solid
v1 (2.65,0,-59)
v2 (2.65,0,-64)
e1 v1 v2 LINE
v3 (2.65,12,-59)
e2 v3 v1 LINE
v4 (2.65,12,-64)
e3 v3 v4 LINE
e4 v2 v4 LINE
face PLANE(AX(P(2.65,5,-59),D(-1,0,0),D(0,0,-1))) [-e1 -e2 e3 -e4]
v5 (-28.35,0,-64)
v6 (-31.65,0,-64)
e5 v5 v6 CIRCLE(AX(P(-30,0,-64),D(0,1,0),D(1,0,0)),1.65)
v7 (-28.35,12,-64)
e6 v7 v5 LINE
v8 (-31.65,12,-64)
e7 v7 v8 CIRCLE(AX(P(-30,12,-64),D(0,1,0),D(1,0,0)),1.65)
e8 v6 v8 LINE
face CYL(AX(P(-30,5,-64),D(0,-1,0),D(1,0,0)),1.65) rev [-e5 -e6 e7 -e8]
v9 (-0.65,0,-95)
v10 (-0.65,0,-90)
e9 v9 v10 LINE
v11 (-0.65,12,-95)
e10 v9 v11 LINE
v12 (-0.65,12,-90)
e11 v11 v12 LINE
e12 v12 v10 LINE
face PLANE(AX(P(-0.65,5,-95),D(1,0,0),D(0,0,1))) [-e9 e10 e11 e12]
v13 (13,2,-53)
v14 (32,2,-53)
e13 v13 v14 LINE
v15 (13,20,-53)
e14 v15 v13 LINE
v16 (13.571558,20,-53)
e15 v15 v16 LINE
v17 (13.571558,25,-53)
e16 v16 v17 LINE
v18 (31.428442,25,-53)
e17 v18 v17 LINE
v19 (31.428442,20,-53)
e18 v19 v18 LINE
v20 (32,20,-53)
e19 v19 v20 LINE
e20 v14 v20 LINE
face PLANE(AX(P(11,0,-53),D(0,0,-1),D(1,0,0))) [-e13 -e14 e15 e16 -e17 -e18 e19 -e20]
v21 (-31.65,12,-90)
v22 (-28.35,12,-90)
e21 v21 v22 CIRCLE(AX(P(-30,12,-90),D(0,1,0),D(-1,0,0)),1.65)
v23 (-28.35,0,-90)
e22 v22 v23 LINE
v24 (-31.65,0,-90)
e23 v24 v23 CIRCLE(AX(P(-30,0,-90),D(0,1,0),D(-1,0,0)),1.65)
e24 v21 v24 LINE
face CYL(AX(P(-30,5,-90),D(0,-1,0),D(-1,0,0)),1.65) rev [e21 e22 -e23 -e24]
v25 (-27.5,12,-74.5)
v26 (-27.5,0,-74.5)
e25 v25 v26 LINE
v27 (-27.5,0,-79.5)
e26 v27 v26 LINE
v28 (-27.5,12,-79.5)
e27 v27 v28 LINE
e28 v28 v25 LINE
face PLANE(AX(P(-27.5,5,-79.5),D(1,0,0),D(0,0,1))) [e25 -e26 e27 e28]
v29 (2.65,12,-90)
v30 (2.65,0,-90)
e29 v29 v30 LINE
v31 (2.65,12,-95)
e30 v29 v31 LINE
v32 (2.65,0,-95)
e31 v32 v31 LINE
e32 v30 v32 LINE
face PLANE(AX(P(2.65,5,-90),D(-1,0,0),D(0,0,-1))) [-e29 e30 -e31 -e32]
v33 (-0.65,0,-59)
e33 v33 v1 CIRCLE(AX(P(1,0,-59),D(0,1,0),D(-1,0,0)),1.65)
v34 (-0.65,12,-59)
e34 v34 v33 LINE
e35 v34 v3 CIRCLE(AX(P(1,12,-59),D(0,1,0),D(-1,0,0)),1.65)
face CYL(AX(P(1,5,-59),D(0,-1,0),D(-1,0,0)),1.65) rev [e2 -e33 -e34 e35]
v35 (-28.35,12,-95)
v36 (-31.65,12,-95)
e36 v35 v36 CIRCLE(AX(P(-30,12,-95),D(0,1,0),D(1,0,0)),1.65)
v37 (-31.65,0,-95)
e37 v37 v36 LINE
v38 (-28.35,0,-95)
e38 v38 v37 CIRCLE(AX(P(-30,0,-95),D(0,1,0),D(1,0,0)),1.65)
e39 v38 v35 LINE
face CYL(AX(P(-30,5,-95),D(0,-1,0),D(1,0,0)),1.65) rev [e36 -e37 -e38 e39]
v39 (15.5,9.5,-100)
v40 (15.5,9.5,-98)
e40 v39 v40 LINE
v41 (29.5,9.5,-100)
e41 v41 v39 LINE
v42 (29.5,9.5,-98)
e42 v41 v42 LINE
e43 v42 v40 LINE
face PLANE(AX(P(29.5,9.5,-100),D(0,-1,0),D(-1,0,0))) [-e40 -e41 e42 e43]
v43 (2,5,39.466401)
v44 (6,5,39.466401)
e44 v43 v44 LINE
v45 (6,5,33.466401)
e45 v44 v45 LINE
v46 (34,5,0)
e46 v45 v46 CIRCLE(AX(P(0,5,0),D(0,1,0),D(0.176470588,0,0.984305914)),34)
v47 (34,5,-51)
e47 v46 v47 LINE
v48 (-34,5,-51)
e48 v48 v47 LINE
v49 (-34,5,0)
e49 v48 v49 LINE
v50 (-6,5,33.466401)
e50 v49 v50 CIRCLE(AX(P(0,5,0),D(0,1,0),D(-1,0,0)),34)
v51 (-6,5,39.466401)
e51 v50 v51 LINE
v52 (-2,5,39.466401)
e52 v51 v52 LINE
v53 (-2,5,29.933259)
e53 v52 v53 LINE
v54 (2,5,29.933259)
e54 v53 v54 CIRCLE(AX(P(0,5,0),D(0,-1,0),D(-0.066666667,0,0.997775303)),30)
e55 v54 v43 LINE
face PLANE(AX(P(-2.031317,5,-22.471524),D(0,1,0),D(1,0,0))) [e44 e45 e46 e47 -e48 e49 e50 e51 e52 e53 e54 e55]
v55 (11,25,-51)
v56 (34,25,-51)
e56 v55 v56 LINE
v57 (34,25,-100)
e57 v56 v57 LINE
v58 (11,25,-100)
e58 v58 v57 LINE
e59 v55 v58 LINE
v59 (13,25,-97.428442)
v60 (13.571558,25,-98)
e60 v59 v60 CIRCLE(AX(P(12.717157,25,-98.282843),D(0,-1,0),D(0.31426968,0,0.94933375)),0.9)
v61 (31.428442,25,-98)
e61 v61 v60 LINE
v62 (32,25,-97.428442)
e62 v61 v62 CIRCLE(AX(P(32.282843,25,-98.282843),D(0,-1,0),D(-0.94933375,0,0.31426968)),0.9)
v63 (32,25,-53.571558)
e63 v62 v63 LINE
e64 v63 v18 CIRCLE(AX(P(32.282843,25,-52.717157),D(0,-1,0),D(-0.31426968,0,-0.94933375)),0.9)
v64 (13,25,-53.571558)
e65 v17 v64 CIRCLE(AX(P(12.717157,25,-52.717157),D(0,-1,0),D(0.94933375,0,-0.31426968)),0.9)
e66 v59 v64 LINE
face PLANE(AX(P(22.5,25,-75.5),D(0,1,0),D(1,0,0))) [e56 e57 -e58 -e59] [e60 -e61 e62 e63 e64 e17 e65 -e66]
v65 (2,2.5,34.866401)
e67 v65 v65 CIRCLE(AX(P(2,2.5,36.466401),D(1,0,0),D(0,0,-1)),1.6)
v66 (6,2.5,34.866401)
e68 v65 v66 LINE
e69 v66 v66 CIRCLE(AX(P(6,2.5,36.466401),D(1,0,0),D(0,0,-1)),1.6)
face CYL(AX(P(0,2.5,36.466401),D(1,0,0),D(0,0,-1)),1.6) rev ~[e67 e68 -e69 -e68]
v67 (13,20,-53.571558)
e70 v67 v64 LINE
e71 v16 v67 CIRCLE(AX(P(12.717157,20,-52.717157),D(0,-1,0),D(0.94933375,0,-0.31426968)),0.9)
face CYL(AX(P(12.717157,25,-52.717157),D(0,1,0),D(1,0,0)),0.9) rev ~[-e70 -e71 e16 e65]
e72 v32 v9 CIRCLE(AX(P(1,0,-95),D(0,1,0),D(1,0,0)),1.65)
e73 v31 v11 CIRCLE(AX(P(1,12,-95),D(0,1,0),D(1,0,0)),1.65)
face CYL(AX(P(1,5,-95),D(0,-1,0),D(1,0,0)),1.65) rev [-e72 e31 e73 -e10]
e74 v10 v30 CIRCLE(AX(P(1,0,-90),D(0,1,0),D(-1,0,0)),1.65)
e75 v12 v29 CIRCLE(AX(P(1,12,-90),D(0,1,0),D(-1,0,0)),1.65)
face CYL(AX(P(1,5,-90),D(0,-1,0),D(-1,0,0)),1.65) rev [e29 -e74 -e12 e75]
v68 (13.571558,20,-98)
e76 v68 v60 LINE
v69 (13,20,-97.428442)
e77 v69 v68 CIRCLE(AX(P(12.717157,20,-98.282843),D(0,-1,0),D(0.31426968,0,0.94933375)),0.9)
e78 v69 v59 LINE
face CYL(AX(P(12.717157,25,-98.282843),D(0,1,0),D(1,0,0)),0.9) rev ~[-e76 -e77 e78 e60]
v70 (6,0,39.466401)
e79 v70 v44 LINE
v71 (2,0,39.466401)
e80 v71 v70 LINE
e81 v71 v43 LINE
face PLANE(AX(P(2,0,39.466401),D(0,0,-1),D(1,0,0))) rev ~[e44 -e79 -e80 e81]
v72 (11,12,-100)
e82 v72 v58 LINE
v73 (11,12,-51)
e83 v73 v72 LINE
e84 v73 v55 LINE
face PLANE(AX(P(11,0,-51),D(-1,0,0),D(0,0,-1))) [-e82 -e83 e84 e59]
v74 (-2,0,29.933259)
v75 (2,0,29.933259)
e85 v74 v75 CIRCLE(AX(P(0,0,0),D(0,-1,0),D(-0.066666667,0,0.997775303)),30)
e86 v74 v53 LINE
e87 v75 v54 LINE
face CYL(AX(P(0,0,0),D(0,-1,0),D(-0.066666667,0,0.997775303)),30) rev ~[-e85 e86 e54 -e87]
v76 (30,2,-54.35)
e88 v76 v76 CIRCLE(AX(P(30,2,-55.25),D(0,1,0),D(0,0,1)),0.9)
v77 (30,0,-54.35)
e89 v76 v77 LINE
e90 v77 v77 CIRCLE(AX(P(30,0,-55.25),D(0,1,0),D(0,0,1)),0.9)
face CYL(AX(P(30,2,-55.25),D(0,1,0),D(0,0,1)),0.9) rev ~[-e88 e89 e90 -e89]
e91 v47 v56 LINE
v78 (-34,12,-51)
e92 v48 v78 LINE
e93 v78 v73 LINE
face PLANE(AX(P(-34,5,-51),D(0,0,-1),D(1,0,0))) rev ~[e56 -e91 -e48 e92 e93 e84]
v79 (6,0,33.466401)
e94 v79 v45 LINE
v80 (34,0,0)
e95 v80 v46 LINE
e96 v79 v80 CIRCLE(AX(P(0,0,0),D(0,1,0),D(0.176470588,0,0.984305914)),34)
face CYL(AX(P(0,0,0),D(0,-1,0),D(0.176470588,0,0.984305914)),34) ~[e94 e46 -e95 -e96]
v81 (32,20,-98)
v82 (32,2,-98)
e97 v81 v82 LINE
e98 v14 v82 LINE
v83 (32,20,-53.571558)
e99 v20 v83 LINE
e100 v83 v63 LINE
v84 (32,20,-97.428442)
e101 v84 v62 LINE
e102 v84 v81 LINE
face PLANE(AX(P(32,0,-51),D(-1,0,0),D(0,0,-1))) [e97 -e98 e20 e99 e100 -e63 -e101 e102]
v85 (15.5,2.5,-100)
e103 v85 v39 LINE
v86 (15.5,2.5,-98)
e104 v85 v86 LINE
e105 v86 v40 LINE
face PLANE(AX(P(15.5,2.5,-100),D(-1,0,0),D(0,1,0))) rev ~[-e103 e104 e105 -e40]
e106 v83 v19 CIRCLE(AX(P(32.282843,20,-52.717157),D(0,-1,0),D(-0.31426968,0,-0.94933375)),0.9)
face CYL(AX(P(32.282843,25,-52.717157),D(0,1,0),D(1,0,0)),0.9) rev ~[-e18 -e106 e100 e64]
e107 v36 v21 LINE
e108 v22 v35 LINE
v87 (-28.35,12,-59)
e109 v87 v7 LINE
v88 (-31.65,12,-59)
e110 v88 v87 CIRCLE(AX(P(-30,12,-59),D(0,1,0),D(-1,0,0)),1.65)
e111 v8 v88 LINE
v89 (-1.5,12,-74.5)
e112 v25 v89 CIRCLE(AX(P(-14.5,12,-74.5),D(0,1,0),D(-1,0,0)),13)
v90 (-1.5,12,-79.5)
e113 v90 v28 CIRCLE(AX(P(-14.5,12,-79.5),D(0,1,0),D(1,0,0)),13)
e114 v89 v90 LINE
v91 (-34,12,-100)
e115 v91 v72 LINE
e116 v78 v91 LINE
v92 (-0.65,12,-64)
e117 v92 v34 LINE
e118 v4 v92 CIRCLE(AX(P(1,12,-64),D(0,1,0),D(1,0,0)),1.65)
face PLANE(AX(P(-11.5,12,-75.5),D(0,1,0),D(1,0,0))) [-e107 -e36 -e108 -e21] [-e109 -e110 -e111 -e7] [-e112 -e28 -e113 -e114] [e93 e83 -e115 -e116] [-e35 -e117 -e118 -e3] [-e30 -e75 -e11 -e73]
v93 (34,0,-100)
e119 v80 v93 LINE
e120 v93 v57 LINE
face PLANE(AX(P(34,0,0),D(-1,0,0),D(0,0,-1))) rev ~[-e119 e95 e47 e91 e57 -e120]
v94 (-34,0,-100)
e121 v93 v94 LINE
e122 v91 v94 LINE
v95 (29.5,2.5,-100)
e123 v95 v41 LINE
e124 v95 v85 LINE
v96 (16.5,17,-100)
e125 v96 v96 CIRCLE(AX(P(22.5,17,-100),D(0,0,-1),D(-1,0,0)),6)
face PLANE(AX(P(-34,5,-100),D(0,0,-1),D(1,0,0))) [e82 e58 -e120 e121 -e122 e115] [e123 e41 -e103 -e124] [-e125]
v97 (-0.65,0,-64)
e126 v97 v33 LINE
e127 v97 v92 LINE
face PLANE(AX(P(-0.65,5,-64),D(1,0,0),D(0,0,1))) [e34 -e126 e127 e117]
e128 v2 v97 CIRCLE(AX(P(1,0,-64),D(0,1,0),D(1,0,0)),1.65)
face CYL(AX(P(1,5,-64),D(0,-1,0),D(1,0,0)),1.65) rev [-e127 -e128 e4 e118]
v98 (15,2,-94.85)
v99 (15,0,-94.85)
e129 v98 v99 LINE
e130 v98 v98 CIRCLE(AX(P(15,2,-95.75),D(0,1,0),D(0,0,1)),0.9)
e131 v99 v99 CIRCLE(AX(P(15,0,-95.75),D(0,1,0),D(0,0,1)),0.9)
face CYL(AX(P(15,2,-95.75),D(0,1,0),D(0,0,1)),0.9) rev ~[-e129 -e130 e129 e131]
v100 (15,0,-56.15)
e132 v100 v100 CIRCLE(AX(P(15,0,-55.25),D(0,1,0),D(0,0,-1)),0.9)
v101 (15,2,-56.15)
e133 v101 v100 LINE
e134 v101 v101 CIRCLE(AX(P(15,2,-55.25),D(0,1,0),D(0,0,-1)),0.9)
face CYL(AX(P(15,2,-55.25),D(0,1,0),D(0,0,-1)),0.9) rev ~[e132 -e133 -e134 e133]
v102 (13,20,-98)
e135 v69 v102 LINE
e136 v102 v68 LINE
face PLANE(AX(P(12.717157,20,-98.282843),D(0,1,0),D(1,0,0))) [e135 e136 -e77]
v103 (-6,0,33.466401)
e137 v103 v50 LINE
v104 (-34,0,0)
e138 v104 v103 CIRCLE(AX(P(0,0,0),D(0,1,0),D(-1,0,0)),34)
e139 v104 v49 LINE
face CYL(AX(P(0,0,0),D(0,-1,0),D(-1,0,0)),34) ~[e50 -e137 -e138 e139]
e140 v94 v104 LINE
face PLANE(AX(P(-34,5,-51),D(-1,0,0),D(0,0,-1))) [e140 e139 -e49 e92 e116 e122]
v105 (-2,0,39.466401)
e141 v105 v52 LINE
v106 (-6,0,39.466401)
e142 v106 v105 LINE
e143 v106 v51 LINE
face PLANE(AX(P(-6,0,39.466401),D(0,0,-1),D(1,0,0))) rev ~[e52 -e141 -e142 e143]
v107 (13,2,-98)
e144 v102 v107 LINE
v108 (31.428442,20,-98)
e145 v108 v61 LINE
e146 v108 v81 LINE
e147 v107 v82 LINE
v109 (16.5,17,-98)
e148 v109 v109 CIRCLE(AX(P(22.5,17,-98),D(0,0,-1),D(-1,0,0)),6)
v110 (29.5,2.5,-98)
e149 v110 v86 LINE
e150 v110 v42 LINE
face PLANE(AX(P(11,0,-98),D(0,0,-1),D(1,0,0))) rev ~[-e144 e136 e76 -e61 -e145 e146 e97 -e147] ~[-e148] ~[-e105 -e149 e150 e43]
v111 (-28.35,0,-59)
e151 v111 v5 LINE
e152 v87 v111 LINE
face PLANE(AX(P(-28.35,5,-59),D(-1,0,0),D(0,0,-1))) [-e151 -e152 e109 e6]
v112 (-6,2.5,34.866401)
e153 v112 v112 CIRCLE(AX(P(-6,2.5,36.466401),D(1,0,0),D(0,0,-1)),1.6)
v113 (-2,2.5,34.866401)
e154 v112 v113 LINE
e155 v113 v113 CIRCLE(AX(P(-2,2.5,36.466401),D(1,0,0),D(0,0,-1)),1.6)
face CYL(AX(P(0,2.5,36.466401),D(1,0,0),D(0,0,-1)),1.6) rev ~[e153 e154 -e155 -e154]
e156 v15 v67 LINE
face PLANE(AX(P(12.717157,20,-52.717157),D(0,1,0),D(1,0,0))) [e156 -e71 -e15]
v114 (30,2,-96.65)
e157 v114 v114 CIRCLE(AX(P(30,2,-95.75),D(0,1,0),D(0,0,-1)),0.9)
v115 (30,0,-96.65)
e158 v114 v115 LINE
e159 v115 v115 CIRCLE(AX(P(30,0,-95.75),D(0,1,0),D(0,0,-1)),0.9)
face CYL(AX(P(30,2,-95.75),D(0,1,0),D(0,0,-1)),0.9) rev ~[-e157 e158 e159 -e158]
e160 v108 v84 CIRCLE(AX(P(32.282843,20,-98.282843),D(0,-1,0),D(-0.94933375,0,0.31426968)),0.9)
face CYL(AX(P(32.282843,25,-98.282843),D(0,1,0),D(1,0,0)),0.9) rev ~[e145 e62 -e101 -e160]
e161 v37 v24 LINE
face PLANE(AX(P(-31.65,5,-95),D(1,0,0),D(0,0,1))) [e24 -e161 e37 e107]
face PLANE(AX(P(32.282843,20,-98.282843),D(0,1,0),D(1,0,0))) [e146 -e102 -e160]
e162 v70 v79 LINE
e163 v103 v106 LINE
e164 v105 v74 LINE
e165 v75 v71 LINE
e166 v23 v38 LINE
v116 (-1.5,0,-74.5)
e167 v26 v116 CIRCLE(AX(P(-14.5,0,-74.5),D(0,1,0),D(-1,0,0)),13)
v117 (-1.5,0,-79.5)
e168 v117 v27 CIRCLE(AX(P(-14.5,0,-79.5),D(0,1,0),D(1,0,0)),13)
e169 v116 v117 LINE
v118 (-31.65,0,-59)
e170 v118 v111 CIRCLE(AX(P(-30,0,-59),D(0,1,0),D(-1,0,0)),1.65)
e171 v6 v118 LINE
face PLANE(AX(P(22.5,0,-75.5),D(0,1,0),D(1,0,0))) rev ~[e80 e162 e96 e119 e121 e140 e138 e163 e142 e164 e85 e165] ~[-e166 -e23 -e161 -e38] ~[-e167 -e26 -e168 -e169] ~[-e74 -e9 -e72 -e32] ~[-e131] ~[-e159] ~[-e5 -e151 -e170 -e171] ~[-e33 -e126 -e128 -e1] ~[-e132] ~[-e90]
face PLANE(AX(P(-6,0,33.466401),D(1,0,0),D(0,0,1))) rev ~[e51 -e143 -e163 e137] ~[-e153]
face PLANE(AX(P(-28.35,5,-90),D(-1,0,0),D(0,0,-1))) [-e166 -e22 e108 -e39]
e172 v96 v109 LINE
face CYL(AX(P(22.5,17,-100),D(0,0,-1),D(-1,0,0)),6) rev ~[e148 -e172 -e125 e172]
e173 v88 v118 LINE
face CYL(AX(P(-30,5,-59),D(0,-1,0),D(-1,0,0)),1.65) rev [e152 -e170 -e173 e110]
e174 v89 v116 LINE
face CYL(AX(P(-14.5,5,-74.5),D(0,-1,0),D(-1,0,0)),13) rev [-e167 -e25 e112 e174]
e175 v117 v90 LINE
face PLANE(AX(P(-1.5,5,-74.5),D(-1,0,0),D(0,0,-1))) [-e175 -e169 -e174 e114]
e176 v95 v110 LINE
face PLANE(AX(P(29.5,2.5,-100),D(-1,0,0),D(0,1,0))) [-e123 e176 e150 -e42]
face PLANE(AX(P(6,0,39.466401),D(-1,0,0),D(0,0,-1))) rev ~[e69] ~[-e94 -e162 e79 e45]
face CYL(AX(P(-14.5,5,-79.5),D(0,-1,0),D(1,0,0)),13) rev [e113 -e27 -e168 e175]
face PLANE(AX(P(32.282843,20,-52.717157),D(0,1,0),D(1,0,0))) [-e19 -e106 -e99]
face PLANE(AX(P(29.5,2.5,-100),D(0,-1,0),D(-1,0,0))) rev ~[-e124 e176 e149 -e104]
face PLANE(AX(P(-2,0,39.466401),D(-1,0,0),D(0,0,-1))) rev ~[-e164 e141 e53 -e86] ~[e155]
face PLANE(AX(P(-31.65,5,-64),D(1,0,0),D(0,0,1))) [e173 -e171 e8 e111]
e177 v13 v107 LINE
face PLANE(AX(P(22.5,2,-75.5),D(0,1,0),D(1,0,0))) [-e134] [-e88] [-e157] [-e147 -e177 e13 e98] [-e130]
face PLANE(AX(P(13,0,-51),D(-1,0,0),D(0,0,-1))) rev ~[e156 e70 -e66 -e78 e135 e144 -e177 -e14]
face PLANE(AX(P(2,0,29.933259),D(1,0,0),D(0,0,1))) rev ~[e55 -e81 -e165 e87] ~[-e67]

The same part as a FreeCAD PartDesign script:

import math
import FreeCAD as App
import Part
import Sketcher
from FreeCAD import Vector


def faces_at(feature, points):
    """Names of the faces that lie closest to the given points."""
    faces = feature.Shape.Faces
    near = lambda p: min(range(len(faces)), key=lambda i: faces[i].distToShape(Part.Vertex(*p))[0])
    return sorted({f"Face{near(p) + 1}" for p in points})


def add_polygon(sketch, points):
    """Adds a closed chain of lines whose ends are joined by coincident constraints."""
    first, n = sketch.GeometryCount, len(points)
    for a, b in zip(points, points[1:] + points[:1]):
        sketch.addGeometry(Part.LineSegment(App.Vector(*a, 0), App.Vector(*b, 0)), False)
    for i in range(n):
        sketch.addConstraint(Sketcher.Constraint("Coincident", first + i, 2, first + (i + 1) % n, 1))

doc = App.newDocument("Part")
params = doc.addObject("Spreadsheet::Sheet", "Params")
for row, (alias, value) in enumerate([
    ("sketch1_radius", "34 mm"),
    ("sketch1_radius2", "30 mm"),
    ("sketch1_radius3", "13 mm"),
    ("sketch1_width", "23 mm"),
    ("sketch1_width2", "4 mm"),
    ("pad1_length", "5 mm"),
    ("sketch2_diameter", "3.2 mm"),
    ("pocket1_length", "20 mm"),
    ("sketch3_width", "23 mm"),
    ("sketch3_height", "49 mm"),
    ("pad2_length", "25 mm"),
    ("thickness_wall", "2 mm"),
    ("sketch4_diameter", "12 mm"),
    ("sketch4_width", "14 mm"),
    ("sketch4_height", "7 mm"),
    ("pocket2_length", "2 mm"),
    ("sketch5_diameter", "1.8 mm"),
    ("pocket3_length", "5 mm"),
    ("sketch6_diameter", "1.8 mm"),
    ("pocket4_length", "10 mm"),
    ("sketch7_radius", "13 mm"),
    ("sketch7_width", "45 mm"),
    ("sketch7_height", "49 mm"),
    ("sketch7_height2", "5 mm"),
    ("sketch7_radius2", "1.65 mm"),
    ("pad3_length", "7 mm"),
], start=1):
    params.set(f"A{row}", alias)
    params.set(f"B{row}", "=" + value)
    params.setAlias(f"B{row}", alias)

body = doc.addObject("PartDesign::Body", "Body")

sketch1 = body.newObject("Sketcher::SketchObject", "Sketch")
sketch1.AttachmentSupport = (doc.getObject("XZ_Plane"), [""])
sketch1.MapMode = "FlatFace"
sketch1.addGeometry([
    Part.LineSegment(Vector(6, 39.466401, 0), Vector(6, 33.466401, 0)),
    Part.ArcOfCircle(Part.Circle(Vector(0, 0, 0), Vector(0, 0, 1), 34), math.radians(0), math.radians(79.835751)),
    Part.LineSegment(Vector(34, 0, 0), Vector(34, -51, 0)),
    Part.LineSegment(Vector(34, -51, 0), Vector(11, -51, 0)),
    Part.LineSegment(Vector(11, -51, 0), Vector(11, -100, 0)),
    Part.LineSegment(Vector(11, -100, 0), Vector(-34, -100, 0)),
    Part.LineSegment(Vector(-34, -100, 0), Vector(-34, 0, 0)),
    Part.ArcOfCircle(Part.Circle(Vector(0, 0, 0), Vector(0, 0, 1), 34), math.radians(100.164249), math.radians(180)),
    Part.LineSegment(Vector(-6, 33.466401, 0), Vector(-6, 39.466401, 0)),
    Part.LineSegment(Vector(-6, 39.466401, 0), Vector(-2, 39.466401, 0)),
    Part.LineSegment(Vector(-2, 39.466401, 0), Vector(-2, 29.933259, 0)),
    Part.ArcOfCircle(Part.Circle(Vector(0, 0, 0), Vector(0, 0, 1), 30), math.radians(93.822554), math.radians(446.177446)),
    Part.LineSegment(Vector(2, 29.933259, 0), Vector(2, 39.466401, 0)),
    Part.LineSegment(Vector(2, 39.466401, 0), Vector(6, 39.466401, 0)),
    Part.ArcOfCircle(Part.Circle(Vector(-30, -59, 0), Vector(0, 0, 1), 1.65), math.radians(0), math.radians(180)),
    Part.LineSegment(Vector(-31.65, -59, 0), Vector(-31.65, -64, 0)),
    Part.ArcOfCircle(Part.Circle(Vector(-30, -64, 0), Vector(0, 0, 1), 1.65), math.radians(180), math.radians(360)),
    Part.LineSegment(Vector(-28.35, -64, 0), Vector(-28.35, -59, 0)),
    Part.ArcOfCircle(Part.Circle(Vector(1, -59, 0), Vector(0, 0, 1), 1.65), math.radians(0), math.radians(180)),
    Part.LineSegment(Vector(-0.65, -59, 0), Vector(-0.65, -64, 0)),
    Part.ArcOfCircle(Part.Circle(Vector(1, -64, 0), Vector(0, 0, 1), 1.65), math.radians(180), math.radians(360)),
    Part.LineSegment(Vector(2.65, -64, 0), Vector(2.65, -59, 0)),
    Part.ArcOfCircle(Part.Circle(Vector(-14.5, -74.5, 0), Vector(0, 0, 1), 13), math.radians(0), math.radians(180)),
    Part.LineSegment(Vector(-27.5, -74.5, 0), Vector(-27.5, -79.5, 0)),
    Part.ArcOfCircle(Part.Circle(Vector(-14.5, -79.5, 0), Vector(0, 0, 1), 13), math.radians(180), math.radians(360)),
    Part.LineSegment(Vector(-1.5, -79.5, 0), Vector(-1.5, -74.5, 0)),
    Part.ArcOfCircle(Part.Circle(Vector(-30, -90, 0), Vector(0, 0, 1), 1.65), math.radians(0), math.radians(180)),
    Part.LineSegment(Vector(-31.65, -90, 0), Vector(-31.65, -95, 0)),
    Part.ArcOfCircle(Part.Circle(Vector(-30, -95, 0), Vector(0, 0, 1), 1.65), math.radians(180), math.radians(360)),
    Part.LineSegment(Vector(-28.35, -95, 0), Vector(-28.35, -90, 0)),
    Part.ArcOfCircle(Part.Circle(Vector(1, -90, 0), Vector(0, 0, 1), 1.65), math.radians(0), math.radians(180)),
    Part.LineSegment(Vector(-0.65, -90, 0), Vector(-0.65, -95, 0)),
    Part.ArcOfCircle(Part.Circle(Vector(1, -95, 0), Vector(0, 0, 1), 1.65), math.radians(180), math.radians(360)),
    Part.LineSegment(Vector(2.65, -95, 0), Vector(2.65, -90, 0)),
], False)
sketch1.addConstraint([
    Sketcher.Constraint("Coincident", 0, 2, 1, 2),
    Sketcher.Constraint("Tangent", 1, 1, 2, 1),
    Sketcher.Constraint("Coincident", 2, 2, 3, 1),
    Sketcher.Constraint("Coincident", 3, 2, 4, 1),
    Sketcher.Constraint("Coincident", 4, 2, 5, 1),
    Sketcher.Constraint("Coincident", 5, 2, 6, 1),
    Sketcher.Constraint("Tangent", 6, 2, 7, 2),
    Sketcher.Constraint("Coincident", 7, 1, 8, 1),
    Sketcher.Constraint("Coincident", 8, 2, 9, 1),
    Sketcher.Constraint("Coincident", 9, 2, 10, 1),
    Sketcher.Constraint("Coincident", 10, 2, 11, 1),
    Sketcher.Constraint("Coincident", 11, 2, 12, 1),
    Sketcher.Constraint("Coincident", 12, 2, 13, 1),
    Sketcher.Constraint("Coincident", 13, 2, 0, 1),
    Sketcher.Constraint("Tangent", 14, 2, 15, 1),
    Sketcher.Constraint("Tangent", 15, 2, 16, 1),
    Sketcher.Constraint("Tangent", 16, 2, 17, 1),
    Sketcher.Constraint("Tangent", 17, 2, 14, 1),
    Sketcher.Constraint("Tangent", 18, 2, 19, 1),
    Sketcher.Constraint("Tangent", 19, 2, 20, 1),
    Sketcher.Constraint("Tangent", 20, 2, 21, 1),
    Sketcher.Constraint("Tangent", 21, 2, 18, 1),
    Sketcher.Constraint("Tangent", 22, 2, 23, 1),
    Sketcher.Constraint("Tangent", 23, 2, 24, 1),
    Sketcher.Constraint("Tangent", 24, 2, 25, 1),
    Sketcher.Constraint("Tangent", 25, 2, 22, 1),
    Sketcher.Constraint("Tangent", 26, 2, 27, 1),
    Sketcher.Constraint("Tangent", 27, 2, 28, 1),
    Sketcher.Constraint("Tangent", 28, 2, 29, 1),
    Sketcher.Constraint("Tangent", 29, 2, 26, 1),
    Sketcher.Constraint("Tangent", 30, 2, 31, 1),
    Sketcher.Constraint("Tangent", 31, 2, 32, 1),
    Sketcher.Constraint("Tangent", 32, 2, 33, 1),
    Sketcher.Constraint("Tangent", 33, 2, 30, 1),
    Sketcher.Constraint("Vertical", 0),
    Sketcher.Constraint("Vertical", 2),
    Sketcher.Constraint("Horizontal", 3),
    Sketcher.Constraint("Vertical", 4),
    Sketcher.Constraint("Horizontal", 5),
    Sketcher.Constraint("Vertical", 6),
    Sketcher.Constraint("Vertical", 8),
    Sketcher.Constraint("Horizontal", 9),
    Sketcher.Constraint("Vertical", 10),
    Sketcher.Constraint("Vertical", 12),
    Sketcher.Constraint("Horizontal", 13),
    Sketcher.Constraint("Vertical", 15),
    Sketcher.Constraint("Vertical", 17),
    Sketcher.Constraint("Vertical", 19),
    Sketcher.Constraint("Vertical", 21),
    Sketcher.Constraint("Vertical", 23),
    Sketcher.Constraint("Vertical", 25),
    Sketcher.Constraint("Vertical", 27),
    Sketcher.Constraint("Vertical", 29),
    Sketcher.Constraint("Vertical", 31),
    Sketcher.Constraint("Vertical", 33),
    Sketcher.Constraint("Coincident", 1, 3, -1, 1),
    Sketcher.Constraint("Coincident", 7, 3, -1, 1),
    Sketcher.Constraint("Coincident", 11, 3, -1, 1),
    Sketcher.Constraint("Equal", 1, 7),
    Sketcher.Constraint("Equal", 16, 18),
    Sketcher.Constraint("Equal", 20, 26),
    Sketcher.Constraint("Equal", 28, 30),
    Sketcher.Constraint("Symmetric", 9, 2, 12, 2, -2),
    Sketcher.Constraint("Horizontal", 14, 3, 18, 3),
    Sketcher.Constraint("Horizontal", 16, 3, 20, 3),
    Sketcher.Constraint("Horizontal", 26, 3, 30, 3),
    Sketcher.Constraint("Horizontal", 28, 3, 32, 3),
    Sketcher.Constraint("Horizontal", 0, 2, 7, 1),
    Sketcher.Constraint("Vertical", 16, 3, 26, 3),
    Sketcher.Constraint("Vertical", 20, 3, 30, 3),
    Sketcher.Constraint("Equal", 21, 23),
    Sketcher.Constraint("Equal", 25, 27),
    Sketcher.Constraint("Radius", 1, 34.0),
    Sketcher.Constraint("Radius", 11, 30.0),
    Sketcher.Constraint("Radius", 22, 13.0),
    Sketcher.Constraint("DistanceX", 3, 2, 3, 1, 23.0),
    Sketcher.Constraint("DistanceX", 9, 1, 9, 2, 4.0),
    Sketcher.Constraint("DistanceY", 0, 2, 0, 1, 6.0),
    Sketcher.Constraint("DistanceY", 2, 2, 2, 1, 51.0),
    Sketcher.Constraint("DistanceY", 4, 2, 4, 1, 49.0),
    Sketcher.Constraint("DistanceY", 15, 2, 15, 1, 5.0),
    Sketcher.Constraint("Radius", 14, 1.65),
    Sketcher.Constraint("DistanceX", 14, 3, -1, 1, 30.0),
    Sketcher.Constraint("DistanceY", 14, 3, -1, 1, 59.0),
    Sketcher.Constraint("DistanceX", -1, 1, 18, 3, 1.0),
    Sketcher.Constraint("DistanceY", 26, 3, -1, 1, 90.0),
    Sketcher.Constraint("DistanceX", -1, 1, 0, 2, 6.0),
    Sketcher.Constraint("DistanceX", 22, 3, -1, 1, 14.5),
    Sketcher.Constraint("DistanceY", 22, 3, -1, 1, 74.5),
])
sketch1.setExpression("Constraints[72]", "Params.sketch1_radius")
sketch1.setExpression("Constraints[73]", "Params.sketch1_radius2")
sketch1.setExpression("Constraints[74]", "Params.sketch1_radius3")
sketch1.setExpression("Constraints[75]", "Params.sketch1_width")
sketch1.setExpression("Constraints[76]", "Params.sketch1_width2")
pad1 = body.newObject("PartDesign::Pad", "Pad")
pad1.Profile = sketch1
pad1.setExpression("Length", "Params.pad1_length")
pad1.Reversed = True

sketch2 = body.newObject("Sketcher::SketchObject", "Sketch001")
sketch2.AttachmentSupport = (doc.getObject("YZ_Plane"), [""])
sketch2.MapMode = "FlatFace"
sketch2.addGeometry(Part.Circle(Vector(2.5, 36.466401, 0), Vector(0, 0, 1), 1.6), False)
sketch2.addConstraint([
    Sketcher.Constraint("Diameter", 0, 3.2),
    Sketcher.Constraint("DistanceX", -1, 1, 0, 3, 2.5),
    Sketcher.Constraint("DistanceY", -1, 1, 0, 3, 36.466401),
])
sketch2.setExpression("Constraints[0]", "Params.sketch2_diameter")
pocket1 = body.newObject("PartDesign::Pocket", "Pocket")
pocket1.Profile = sketch2
pocket1.setExpression("Length", "Params.pocket1_length")
pocket1.Midplane = True
body2 = doc.addObject("PartDesign::Body", "Body001")

sketch3 = body2.newObject("Sketcher::SketchObject", "Sketch002")
sketch3.AttachmentSupport = (doc.getObject("XZ_Plane001"), [""])
sketch3.MapMode = "FlatFace"
add_polygon(sketch3, [(11, -100), (11, -51), (34, -51), (34, -100)])
sketch3.addConstraint([
    Sketcher.Constraint("Vertical", 0),
    Sketcher.Constraint("Horizontal", 1),
    Sketcher.Constraint("Vertical", 2),
    Sketcher.Constraint("Horizontal", 3),
    Sketcher.Constraint("DistanceX", 1, 1, 1, 2, 23.0),
    Sketcher.Constraint("DistanceY", 0, 1, 0, 2, 49.0),
    Sketcher.Constraint("DistanceX", -1, 1, 0, 2, 11.0),
    Sketcher.Constraint("DistanceY", 0, 2, -1, 1, 51.0),
])
sketch3.setExpression("Constraints[8]", "Params.sketch3_width")
sketch3.setExpression("Constraints[9]", "Params.sketch3_height")
pad2 = body2.newObject("PartDesign::Pad", "Pad001")
pad2.Profile = sketch3
pad2.setExpression("Length", "Params.pad2_length")
pad2.Reversed = True
doc.recompute()

thickness = body2.newObject("PartDesign::Thickness", "Thickness")
thickness.Base = (pad2, faces_at(pad2, [(22.5, 25, -75.5)]))
thickness.setExpression("Value", "Params.thickness_wall")
thickness.Reversed = True
thickness.Join = "Intersection"

sketch4 = body2.newObject("Sketcher::SketchObject", "Sketch003")
sketch4.AttachmentSupport = (doc.getObject("XY_Plane001"), [""])
sketch4.MapMode = "FlatFace"
sketch4.AttachmentOffset = App.Placement(Vector(0, 0, -100), App.Rotation())
sketch4.addGeometry(Part.Circle(Vector(22.5, 17, 0), Vector(0, 0, 1), 6), False)
add_polygon(sketch4, [(29.5, 9.5), (29.5, 2.5), (15.5, 2.5), (15.5, 9.5)])
sketch4.addConstraint([
    Sketcher.Constraint("Vertical", 1),
    Sketcher.Constraint("Horizontal", 2),
    Sketcher.Constraint("Vertical", 3),
    Sketcher.Constraint("Horizontal", 4),
    Sketcher.Constraint("Diameter", 0, 12.0),
    Sketcher.Constraint("DistanceX", 2, 2, 2, 1, 14.0),
    Sketcher.Constraint("DistanceY", 1, 2, 1, 1, 7.0),
    Sketcher.Constraint("DistanceY", -1, 1, 0, 3, 17.0),
    Sketcher.Constraint("DistanceX", 0, 3, 1, 2, 7.0),
    Sketcher.Constraint("DistanceX", -1, 1, 0, 3, 22.5),
    Sketcher.Constraint("DistanceY", -1, 1, 1, 2, 2.5),
])
sketch4.setExpression("Constraints[8]", "Params.sketch4_diameter")
sketch4.setExpression("Constraints[9]", "Params.sketch4_width")
sketch4.setExpression("Constraints[10]", "Params.sketch4_height")
pocket2 = body2.newObject("PartDesign::Pocket", "Pocket001")
pocket2.Profile = sketch4
pocket2.setExpression("Length", "Params.pocket2_length")
pocket2.Reversed = True

sketch5 = body2.newObject("Sketcher::SketchObject", "Sketch004")
sketch5.AttachmentSupport = (doc.getObject("XZ_Plane001"), [""])
sketch5.MapMode = "FlatFace"
sketch5.AttachmentOffset = App.Placement(Vector(0, 0, -25), App.Rotation())
sketch5.addGeometry([
    Part.Circle(Vector(12.717157, -52.717157, 0), Vector(0, 0, 1), 0.9),
    Part.Circle(Vector(32.282843, -52.717157, 0), Vector(0, 0, 1), 0.9),
    Part.Circle(Vector(32.282843, -98.282843, 0), Vector(0, 0, 1), 0.9),
    Part.Circle(Vector(12.717157, -98.282843, 0), Vector(0, 0, 1), 0.9),
], False)
sketch5.addConstraint([
    Sketcher.Constraint("Equal", 0, 1),
    Sketcher.Constraint("Equal", 1, 2),
    Sketcher.Constraint("Equal", 2, 3),
    Sketcher.Constraint("Horizontal", 0, 3, 1, 3),
    Sketcher.Constraint("Horizontal", 2, 3, 3, 3),
    Sketcher.Constraint("Vertical", 1, 3, 2, 3),
    Sketcher.Constraint("Vertical", 0, 3, 3, 3),
    Sketcher.Constraint("Diameter", 0, 1.8),
    Sketcher.Constraint("DistanceX", -1, 1, 0, 3, 12.717157),
    Sketcher.Constraint("DistanceY", 0, 3, -1, 1, 52.717157),
    Sketcher.Constraint("DistanceX", -1, 1, 1, 3, 32.282843),
    Sketcher.Constraint("DistanceY", 2, 3, -1, 1, 98.282843),
])
sketch5.setExpression("Constraints[7]", "Params.sketch5_diameter")
pocket3 = body2.newObject("PartDesign::Pocket", "Pocket002")
pocket3.Profile = sketch5
pocket3.setExpression("Length", "Params.pocket3_length")
pocket3.Reversed = True

sketch6 = body2.newObject("Sketcher::SketchObject", "Sketch005")
sketch6.AttachmentSupport = (doc.getObject("XZ_Plane001"), [""])
sketch6.MapMode = "FlatFace"
sketch6.AttachmentOffset = App.Placement(Vector(0, 0, -2), App.Rotation())
sketch6.addGeometry([
    Part.Circle(Vector(15, -95.75, 0), Vector(0, 0, 1), 0.9),
    Part.Circle(Vector(30, -95.75, 0), Vector(0, 0, 1), 0.9),
    Part.Circle(Vector(30, -55.25, 0), Vector(0, 0, 1), 0.9),
    Part.Circle(Vector(15, -55.25, 0), Vector(0, 0, 1), 0.9),
], False)
sketch6.addConstraint([
    Sketcher.Constraint("Equal", 0, 1),
    Sketcher.Constraint("Equal", 1, 2),
    Sketcher.Constraint("Equal", 2, 3),
    Sketcher.Constraint("Horizontal", 0, 3, 1, 3),
    Sketcher.Constraint("Horizontal", 2, 3, 3, 3),
    Sketcher.Constraint("Vertical", 1, 3, 2, 3),
    Sketcher.Constraint("Vertical", 0, 3, 3, 3),
    Sketcher.Constraint("Diameter", 0, 1.8),
    Sketcher.Constraint("DistanceX", -1, 1, 0, 3, 15.0),
    Sketcher.Constraint("DistanceX", -1, 1, 1, 3, 30.0),
    Sketcher.Constraint("DistanceY", 1, 3, 2, 3, 40.5),
    Sketcher.Constraint("DistanceY", 0, 3, -1, 1, 95.75),
])
sketch6.setExpression("Constraints[7]", "Params.sketch6_diameter")
pocket4 = body2.newObject("PartDesign::Pocket", "Pocket003")
pocket4.Profile = sketch6
pocket4.setExpression("Length", "Params.pocket4_length")
pocket4.Reversed = True
doc.recompute()

boolean = body.newObject("PartDesign::Boolean", "Boolean")
boolean.Type = "Fuse"
boolean.addObjects([body2])

sketch7 = body.newObject("Sketcher::SketchObject", "Sketch006")
sketch7.AttachmentSupport = (doc.getObject("XZ_Plane"), [""])
sketch7.MapMode = "FlatFace"
sketch7.AttachmentOffset = App.Placement(Vector(0, 0, -5), App.Rotation())
add_polygon(sketch7, [(-34, -100), (-34, -51), (11, -51), (11, -100)])
sketch7.addGeometry(Part.LineSegment(Vector(-31.65, -59, 0), Vector(-31.65, -64, 0)), False)
sketch7.addGeometry(Part.ArcOfCircle(Part.Circle(Vector(-30, -64, 0), Vector(0, 0, 1), 1.65), math.radians(180), math.radians(360)), False)
sketch7.addGeometry(Part.LineSegment(Vector(-28.35, -64, 0), Vector(-28.35, -59, 0)), False)
sketch7.addGeometry(Part.ArcOfCircle(Part.Circle(Vector(-30, -59, 0), Vector(0, 0, 1), 1.65), math.radians(0), math.radians(180)), False)
sketch7.addGeometry(Part.LineSegment(Vector(-0.65, -59, 0), Vector(-0.65, -64, 0)), False)
sketch7.addGeometry(Part.ArcOfCircle(Part.Circle(Vector(1, -64, 0), Vector(0, 0, 1), 1.65), math.radians(180), math.radians(360)), False)
sketch7.addGeometry(Part.LineSegment(Vector(2.65, -64, 0), Vector(2.65, -59, 0)), False)
sketch7.addGeometry(Part.ArcOfCircle(Part.Circle(Vector(1, -59, 0), Vector(0, 0, 1), 1.65), math.radians(0), math.radians(180)), False)
sketch7.addGeometry(Part.LineSegment(Vector(-31.65, -90, 0), Vector(-31.65, -95, 0)), False)
sketch7.addGeometry(Part.ArcOfCircle(Part.Circle(Vector(-30, -95, 0), Vector(0, 0, 1), 1.65), math.radians(180), math.radians(360)), False)
sketch7.addGeometry(Part.LineSegment(Vector(-28.35, -95, 0), Vector(-28.35, -90, 0)), False)
sketch7.addGeometry(Part.ArcOfCircle(Part.Circle(Vector(-30, -90, 0), Vector(0, 0, 1), 1.65), math.radians(0), math.radians(180)), False)
sketch7.addGeometry(Part.LineSegment(Vector(-27.5, -74.5, 0), Vector(-27.5, -79.5, 0)), False)
sketch7.addGeometry(Part.ArcOfCircle(Part.Circle(Vector(-14.5, -79.5, 0), Vector(0, 0, 1), 13), math.radians(180), math.radians(360)), False)
sketch7.addGeometry(Part.LineSegment(Vector(-1.5, -79.5, 0), Vector(-1.5, -74.5, 0)), False)
sketch7.addGeometry(Part.ArcOfCircle(Part.Circle(Vector(-14.5, -74.5, 0), Vector(0, 0, 1), 13), math.radians(0), math.radians(180)), False)
sketch7.addGeometry(Part.LineSegment(Vector(-0.65, -90, 0), Vector(-0.65, -95, 0)), False)
sketch7.addGeometry(Part.ArcOfCircle(Part.Circle(Vector(1, -95, 0), Vector(0, 0, 1), 1.65), math.radians(180), math.radians(360)), False)
sketch7.addGeometry(Part.LineSegment(Vector(2.65, -95, 0), Vector(2.65, -90, 0)), False)
sketch7.addGeometry(Part.ArcOfCircle(Part.Circle(Vector(1, -90, 0), Vector(0, 0, 1), 1.65), math.radians(0), math.radians(180)), False)
sketch7.addConstraint([
    Sketcher.Constraint("Tangent", 4, 2, 5, 1),
    Sketcher.Constraint("Tangent", 5, 2, 6, 1),
    Sketcher.Constraint("Tangent", 6, 2, 7, 1),
    Sketcher.Constraint("Tangent", 7, 2, 4, 1),
    Sketcher.Constraint("Tangent", 8, 2, 9, 1),
    Sketcher.Constraint("Tangent", 9, 2, 10, 1),
    Sketcher.Constraint("Tangent", 10, 2, 11, 1),
    Sketcher.Constraint("Tangent", 11, 2, 8, 1),
    Sketcher.Constraint("Tangent", 12, 2, 13, 1),
    Sketcher.Constraint("Tangent", 13, 2, 14, 1),
    Sketcher.Constraint("Tangent", 14, 2, 15, 1),
    Sketcher.Constraint("Tangent", 15, 2, 12, 1),
    Sketcher.Constraint("Tangent", 16, 2, 17, 1),
    Sketcher.Constraint("Tangent", 17, 2, 18, 1),
    Sketcher.Constraint("Tangent", 18, 2, 19, 1),
    Sketcher.Constraint("Tangent", 19, 2, 16, 1),
    Sketcher.Constraint("Tangent", 20, 2, 21, 1),
    Sketcher.Constraint("Tangent", 21, 2, 22, 1),
    Sketcher.Constraint("Tangent", 22, 2, 23, 1),
    Sketcher.Constraint("Tangent", 23, 2, 20, 1),
    Sketcher.Constraint("Vertical", 0),
    Sketcher.Constraint("Horizontal", 1),
    Sketcher.Constraint("Vertical", 2),
    Sketcher.Constraint("Horizontal", 3),
    Sketcher.Constraint("Vertical", 4),
    Sketcher.Constraint("Vertical", 6),
    Sketcher.Constraint("Vertical", 8),
    Sketcher.Constraint("Vertical", 10),
    Sketcher.Constraint("Vertical", 12),
    Sketcher.Constraint("Vertical", 14),
    Sketcher.Constraint("Vertical", 16),
    Sketcher.Constraint("Vertical", 18),
    Sketcher.Constraint("Vertical", 20),
    Sketcher.Constraint("Vertical", 22),
    Sketcher.Constraint("Equal", 7, 9),
    Sketcher.Constraint("Equal", 11, 13),
    Sketcher.Constraint("Equal", 15, 21),
    Sketcher.Constraint("Horizontal", 5, 3, 9, 3),
    Sketcher.Constraint("Horizontal", 7, 3, 11, 3),
    Sketcher.Constraint("Horizontal", 13, 3, 21, 3),
    Sketcher.Constraint("Horizontal", 15, 3, 23, 3),
    Sketcher.Constraint("Vertical", 7, 3, 13, 3),
    Sketcher.Constraint("Vertical", 11, 3, 21, 3),
    Sketcher.Constraint("Equal", 10, 12),
    Sketcher.Constraint("Equal", 14, 16),
    Sketcher.Constraint("Radius", 17, 13.0),
    Sketcher.Constraint("DistanceX", 1, 1, 1, 2, 45.0),
    Sketcher.Constraint("DistanceY", 0, 1, 0, 2, 49.0),
    Sketcher.Constraint("DistanceY", 4, 2, 4, 1, 5.0),
    Sketcher.Constraint("Radius", 5, 1.65),
    Sketcher.Constraint("DistanceX", 5, 3, -1, 1, 30.0),
    Sketcher.Constraint("DistanceY", 5, 3, -1, 1, 64.0),
    Sketcher.Constraint("DistanceX", -1, 1, 9, 3, 1.0),
    Sketcher.Constraint("DistanceY", 13, 3, -1, 1, 95.0),
    Sketcher.Constraint("DistanceX", 0, 2, -1, 1, 34.0),
    Sketcher.Constraint("DistanceY", 0, 2, -1, 1, 51.0),
    Sketcher.Constraint("DistanceX", 17, 3, -1, 1, 14.5),
    Sketcher.Constraint("DistanceY", 17, 3, -1, 1, 79.5),
])
sketch7.setExpression("Constraints[49]", "Params.sketch7_radius")
sketch7.setExpression("Constraints[50]", "Params.sketch7_width")
sketch7.setExpression("Constraints[51]", "Params.sketch7_height")
sketch7.setExpression("Constraints[52]", "Params.sketch7_height2")
sketch7.setExpression("Constraints[53]", "Params.sketch7_radius2")
pad3 = body.newObject("PartDesign::Pad", "Pad002")
pad3.Profile = sketch7
pad3.setExpression("Length", "Params.pad3_length")
pad3.Reversed = True

doc.recompute()
